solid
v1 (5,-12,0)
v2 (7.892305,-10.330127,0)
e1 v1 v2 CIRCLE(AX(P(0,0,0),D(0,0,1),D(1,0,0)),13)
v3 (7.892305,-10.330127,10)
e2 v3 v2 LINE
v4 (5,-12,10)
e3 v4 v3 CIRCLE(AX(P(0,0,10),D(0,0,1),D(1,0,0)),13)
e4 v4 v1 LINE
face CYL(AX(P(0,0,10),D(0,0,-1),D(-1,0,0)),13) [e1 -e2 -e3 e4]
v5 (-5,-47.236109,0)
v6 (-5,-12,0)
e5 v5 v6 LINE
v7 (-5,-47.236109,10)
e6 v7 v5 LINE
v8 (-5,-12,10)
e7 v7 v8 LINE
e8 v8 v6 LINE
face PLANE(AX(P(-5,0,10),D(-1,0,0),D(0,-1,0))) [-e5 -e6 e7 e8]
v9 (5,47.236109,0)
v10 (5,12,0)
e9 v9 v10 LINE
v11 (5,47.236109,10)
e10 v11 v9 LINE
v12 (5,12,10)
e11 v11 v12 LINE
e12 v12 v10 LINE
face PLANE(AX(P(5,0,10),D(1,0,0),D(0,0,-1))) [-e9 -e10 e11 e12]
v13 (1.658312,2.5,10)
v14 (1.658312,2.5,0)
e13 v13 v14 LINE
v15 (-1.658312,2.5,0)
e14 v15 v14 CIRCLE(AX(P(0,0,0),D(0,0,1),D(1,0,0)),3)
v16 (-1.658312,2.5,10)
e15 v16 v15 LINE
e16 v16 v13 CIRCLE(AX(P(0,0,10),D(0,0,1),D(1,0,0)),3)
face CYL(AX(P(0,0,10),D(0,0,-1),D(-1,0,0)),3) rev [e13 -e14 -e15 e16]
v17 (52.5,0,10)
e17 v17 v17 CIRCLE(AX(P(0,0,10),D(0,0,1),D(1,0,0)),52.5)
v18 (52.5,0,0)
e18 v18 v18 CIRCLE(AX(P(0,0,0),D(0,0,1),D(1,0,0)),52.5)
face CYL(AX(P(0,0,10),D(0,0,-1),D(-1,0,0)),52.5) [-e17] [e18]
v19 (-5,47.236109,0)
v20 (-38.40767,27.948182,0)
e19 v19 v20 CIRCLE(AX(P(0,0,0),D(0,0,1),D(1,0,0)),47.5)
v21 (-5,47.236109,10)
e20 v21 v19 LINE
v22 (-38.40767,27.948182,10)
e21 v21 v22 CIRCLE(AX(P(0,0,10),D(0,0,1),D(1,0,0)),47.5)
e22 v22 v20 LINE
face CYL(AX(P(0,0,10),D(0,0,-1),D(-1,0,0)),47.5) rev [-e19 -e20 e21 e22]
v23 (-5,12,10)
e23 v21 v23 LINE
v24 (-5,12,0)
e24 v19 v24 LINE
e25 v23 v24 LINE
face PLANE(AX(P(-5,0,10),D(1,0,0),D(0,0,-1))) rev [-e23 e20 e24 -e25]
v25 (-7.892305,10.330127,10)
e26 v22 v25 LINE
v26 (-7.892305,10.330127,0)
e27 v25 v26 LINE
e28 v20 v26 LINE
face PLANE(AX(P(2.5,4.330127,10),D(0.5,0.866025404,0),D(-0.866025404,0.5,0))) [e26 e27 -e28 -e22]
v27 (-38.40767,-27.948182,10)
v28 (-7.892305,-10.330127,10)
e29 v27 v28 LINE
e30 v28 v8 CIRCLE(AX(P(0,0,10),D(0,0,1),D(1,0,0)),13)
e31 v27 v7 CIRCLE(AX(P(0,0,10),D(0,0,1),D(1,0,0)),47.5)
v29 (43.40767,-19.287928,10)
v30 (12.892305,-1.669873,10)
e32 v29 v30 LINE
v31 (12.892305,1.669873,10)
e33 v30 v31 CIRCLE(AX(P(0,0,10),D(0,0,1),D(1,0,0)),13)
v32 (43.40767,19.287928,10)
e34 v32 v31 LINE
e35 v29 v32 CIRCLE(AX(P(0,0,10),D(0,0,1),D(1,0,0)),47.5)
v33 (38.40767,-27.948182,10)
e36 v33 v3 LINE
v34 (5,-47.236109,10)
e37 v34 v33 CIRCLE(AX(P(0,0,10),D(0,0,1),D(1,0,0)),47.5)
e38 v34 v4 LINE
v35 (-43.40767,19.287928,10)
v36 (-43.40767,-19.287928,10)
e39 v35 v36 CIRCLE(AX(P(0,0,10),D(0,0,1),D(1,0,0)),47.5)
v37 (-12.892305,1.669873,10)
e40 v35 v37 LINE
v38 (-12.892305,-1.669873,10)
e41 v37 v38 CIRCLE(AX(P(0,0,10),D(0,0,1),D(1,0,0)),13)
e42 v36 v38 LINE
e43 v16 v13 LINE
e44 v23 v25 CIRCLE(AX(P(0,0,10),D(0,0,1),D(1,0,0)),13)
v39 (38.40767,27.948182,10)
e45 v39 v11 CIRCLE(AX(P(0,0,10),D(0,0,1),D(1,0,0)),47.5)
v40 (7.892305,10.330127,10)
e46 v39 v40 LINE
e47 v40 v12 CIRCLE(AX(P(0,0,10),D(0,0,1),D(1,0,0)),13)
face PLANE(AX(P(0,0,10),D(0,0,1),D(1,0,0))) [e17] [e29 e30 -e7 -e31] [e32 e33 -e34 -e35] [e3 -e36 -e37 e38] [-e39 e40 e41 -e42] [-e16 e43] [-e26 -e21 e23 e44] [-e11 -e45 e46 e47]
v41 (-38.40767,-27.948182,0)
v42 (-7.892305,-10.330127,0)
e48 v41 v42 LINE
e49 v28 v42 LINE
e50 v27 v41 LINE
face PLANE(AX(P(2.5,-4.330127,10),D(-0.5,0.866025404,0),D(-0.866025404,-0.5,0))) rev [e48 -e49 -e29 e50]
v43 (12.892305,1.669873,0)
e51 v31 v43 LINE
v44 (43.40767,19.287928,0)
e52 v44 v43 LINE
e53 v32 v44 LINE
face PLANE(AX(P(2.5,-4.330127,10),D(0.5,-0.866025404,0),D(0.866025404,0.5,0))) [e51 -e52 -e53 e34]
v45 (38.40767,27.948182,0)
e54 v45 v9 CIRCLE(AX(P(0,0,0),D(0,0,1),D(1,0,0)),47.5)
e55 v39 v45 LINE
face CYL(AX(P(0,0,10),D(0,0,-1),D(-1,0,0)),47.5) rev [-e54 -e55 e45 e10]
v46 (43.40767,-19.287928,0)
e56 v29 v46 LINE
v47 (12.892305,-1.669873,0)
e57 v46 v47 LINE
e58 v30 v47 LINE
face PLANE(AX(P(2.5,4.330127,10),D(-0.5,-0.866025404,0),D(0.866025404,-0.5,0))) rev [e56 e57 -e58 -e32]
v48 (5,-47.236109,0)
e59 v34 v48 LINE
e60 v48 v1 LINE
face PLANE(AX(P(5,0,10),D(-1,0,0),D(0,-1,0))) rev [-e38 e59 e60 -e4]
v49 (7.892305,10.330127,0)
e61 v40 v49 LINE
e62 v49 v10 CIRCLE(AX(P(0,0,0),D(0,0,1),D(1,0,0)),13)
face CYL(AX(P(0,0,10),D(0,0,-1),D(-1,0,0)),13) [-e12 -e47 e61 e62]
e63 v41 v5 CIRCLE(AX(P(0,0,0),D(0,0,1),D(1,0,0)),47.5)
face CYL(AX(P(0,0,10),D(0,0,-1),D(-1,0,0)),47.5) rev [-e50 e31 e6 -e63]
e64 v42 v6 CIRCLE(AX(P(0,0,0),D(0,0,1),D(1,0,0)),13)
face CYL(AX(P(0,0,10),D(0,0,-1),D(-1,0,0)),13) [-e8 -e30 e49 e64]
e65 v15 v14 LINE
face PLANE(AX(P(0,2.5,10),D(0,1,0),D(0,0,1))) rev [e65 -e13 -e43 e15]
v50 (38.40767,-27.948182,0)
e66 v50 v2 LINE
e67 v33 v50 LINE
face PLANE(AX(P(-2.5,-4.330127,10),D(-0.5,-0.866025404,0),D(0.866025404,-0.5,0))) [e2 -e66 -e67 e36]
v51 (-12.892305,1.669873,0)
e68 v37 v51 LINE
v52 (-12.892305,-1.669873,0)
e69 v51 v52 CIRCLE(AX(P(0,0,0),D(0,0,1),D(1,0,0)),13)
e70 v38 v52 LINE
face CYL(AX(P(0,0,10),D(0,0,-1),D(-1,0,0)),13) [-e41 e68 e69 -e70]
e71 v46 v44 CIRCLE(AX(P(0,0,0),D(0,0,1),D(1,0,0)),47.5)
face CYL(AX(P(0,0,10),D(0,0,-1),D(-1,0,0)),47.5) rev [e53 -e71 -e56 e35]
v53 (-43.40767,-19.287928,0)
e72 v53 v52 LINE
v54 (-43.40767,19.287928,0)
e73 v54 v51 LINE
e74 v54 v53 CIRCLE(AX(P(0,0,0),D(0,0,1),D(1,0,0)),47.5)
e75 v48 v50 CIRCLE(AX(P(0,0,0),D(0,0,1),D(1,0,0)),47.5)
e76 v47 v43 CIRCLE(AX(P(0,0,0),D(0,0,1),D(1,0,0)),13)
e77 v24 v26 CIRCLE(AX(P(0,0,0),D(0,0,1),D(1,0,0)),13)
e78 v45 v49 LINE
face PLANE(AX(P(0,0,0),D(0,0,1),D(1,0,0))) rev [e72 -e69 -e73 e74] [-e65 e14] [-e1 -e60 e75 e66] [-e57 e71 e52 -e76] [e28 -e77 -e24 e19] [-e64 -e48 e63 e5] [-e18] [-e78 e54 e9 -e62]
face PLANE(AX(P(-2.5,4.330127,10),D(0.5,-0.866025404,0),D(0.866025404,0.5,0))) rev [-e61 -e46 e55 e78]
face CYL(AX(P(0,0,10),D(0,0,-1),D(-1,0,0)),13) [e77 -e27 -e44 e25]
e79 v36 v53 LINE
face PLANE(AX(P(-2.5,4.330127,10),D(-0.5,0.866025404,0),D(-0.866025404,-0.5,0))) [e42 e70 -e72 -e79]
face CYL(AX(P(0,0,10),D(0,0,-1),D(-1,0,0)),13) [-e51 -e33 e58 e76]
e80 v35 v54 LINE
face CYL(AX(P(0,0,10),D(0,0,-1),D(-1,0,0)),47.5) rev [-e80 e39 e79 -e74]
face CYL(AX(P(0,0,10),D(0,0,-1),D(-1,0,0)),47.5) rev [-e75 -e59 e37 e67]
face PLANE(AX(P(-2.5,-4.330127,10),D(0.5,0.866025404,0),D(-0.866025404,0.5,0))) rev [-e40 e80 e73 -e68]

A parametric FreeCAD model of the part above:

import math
import FreeCAD as App
import Part
import Sketcher
Q = App.Units.Quantity

doc = App.newDocument("Part")
body = doc.addObject("PartDesign::Body", "Body")

# Sketch on XY plane
sketch1 = body.newObject("Sketcher::SketchObject", "Sketch")
sketch1.AttachmentSupport = (doc.getObject("XY_Plane"), [""])
sketch1.MapMode = "FlatFace"
sketch1.addGeometry([
    Part.Circle(App.Vector(0, 0, 0), App.Vector(0, 0, 1), 52.5),  # 0
    Part.LineSegment(App.Vector(-5, -12, 0), App.Vector(-5, -47.2, 0)),  # 1
    Part.ArcOfCircle(Part.Circle(App.Vector(0, 0, 0), App.Vector(0, 0, 1), 47.5), math.radians(-144), math.radians(-96)),  # 2
    Part.LineSegment(App.Vector(-38.4, -27.9, 0), App.Vector(-7.9, -10.3, 0)),  # 3
    Part.ArcOfCircle(Part.Circle(App.Vector(0, 0, 0), App.Vector(0, 0, 1), 13), math.radians(-127.38), math.radians(-112.62)),  # 4
    Part.LineSegment(App.Vector(7.9, -10.3, 0), App.Vector(38.4, -27.9, 0)),  # 5
    Part.ArcOfCircle(Part.Circle(App.Vector(0, 0, 0), App.Vector(0, 0, 1), 47.5), math.radians(-84), math.radians(-36)),  # 6
    Part.LineSegment(App.Vector(5, -47.2, 0), App.Vector(5, -12, 0)),  # 7
    Part.ArcOfCircle(Part.Circle(App.Vector(0, 0, 0), App.Vector(0, 0, 1), 13), math.radians(-67.38), math.radians(-52.62)),  # 8
    Part.ArcOfCircle(Part.Circle(App.Vector(0, 0, 0), App.Vector(0, 0, 1), 3), math.radians(124), math.radians(416)),  # 9
    Part.LineSegment(App.Vector(-1.7, 2.5, 0), App.Vector(1.7, 2.5, 0)),  # 10
    Part.LineSegment(App.Vector(12.9, 1.7, 0), App.Vector(43.4, 19.3, 0)),  # 11
    Part.ArcOfCircle(Part.Circle(App.Vector(0, 0, 0), App.Vector(0, 0, 1), 47.5), math.radians(-24), math.radians(24)),  # 12
    Part.LineSegment(App.Vector(43.4, -19.3, 0), App.Vector(12.9, -1.7, 0)),  # 13
    Part.ArcOfCircle(Part.Circle(App.Vector(0, 0, 0), App.Vector(0, 0, 1), 13), math.radians(-7.38), math.radians(7.38)),  # 14
    Part.LineSegment(App.Vector(-12.9, -1.7, 0), App.Vector(-43.4, -19.3, 0)),  # 15
    Part.ArcOfCircle(Part.Circle(App.Vector(0, 0, 0), App.Vector(0, 0, 1), 47.5), math.radians(156), math.radians(204)),  # 16
    Part.LineSegment(App.Vector(-43.4, 19.3, 0), App.Vector(-12.9, 1.7, 0)),  # 17
    Part.ArcOfCircle(Part.Circle(App.Vector(0, 0, 0), App.Vector(0, 0, 1), 13), math.radians(172.62), math.radians(187.38)),  # 18
    Part.ArcOfCircle(Part.Circle(App.Vector(0, 0, 0), App.Vector(0, 0, 1), 47.5), math.radians(96), math.radians(144)),  # 19
    Part.LineSegment(App.Vector(-5, 47.2, 0), App.Vector(-5, 12, 0)),  # 20
    Part.ArcOfCircle(Part.Circle(App.Vector(0, 0, 0), App.Vector(0, 0, 1), 13), math.radians(112.62), math.radians(127.38)),  # 21
    Part.LineSegment(App.Vector(-7.9, 10.3, 0), App.Vector(-38.4, 27.9, 0)),  # 22
    Part.LineSegment(App.Vector(5, 12, 0), App.Vector(5, 47.2, 0)),  # 23
    Part.ArcOfCircle(Part.Circle(App.Vector(0, 0, 0), App.Vector(0, 0, 1), 47.5), math.radians(36), math.radians(84)),  # 24
    Part.LineSegment(App.Vector(38.4, 27.9, 0), App.Vector(7.9, 10.3, 0)),  # 25
    Part.ArcOfCircle(Part.Circle(App.Vector(0, 0, 0), App.Vector(0, 0, 1), 13), math.radians(52.62), math.radians(67.38)),  # 26
], False)
sketch1.addConstraint([
    Sketcher.Constraint("Coincident", 1, 2, 2, 2),
    Sketcher.Constraint("Coincident", 2, 1, 3, 1),
    Sketcher.Constraint("Coincident", 3, 2, 4, 1),
    Sketcher.Constraint("Coincident", 4, 2, 1, 1),
    Sketcher.Constraint("Coincident", 5, 2, 6, 2),
    Sketcher.Constraint("Coincident", 6, 1, 7, 1),
    Sketcher.Constraint("Coincident", 7, 2, 8, 1),
    Sketcher.Constraint("Coincident", 8, 2, 5, 1),
    Sketcher.Constraint("Coincident", 9, 1, 10, 1),
    Sketcher.Constraint("Coincident", 10, 2, 9, 2),
    Sketcher.Constraint("Coincident", 11, 2, 12, 2),
    Sketcher.Constraint("Coincident", 12, 1, 13, 1),
    Sketcher.Constraint("Coincident", 13, 2, 14, 1),
    Sketcher.Constraint("Coincident", 14, 2, 11, 1),
    Sketcher.Constraint("Coincident", 15, 2, 16, 2),
    Sketcher.Constraint("Coincident", 16, 1, 17, 1),
    Sketcher.Constraint("Coincident", 17, 2, 18, 1),
    Sketcher.Constraint("Coincident", 18, 2, 15, 1),
    Sketcher.Constraint("Coincident", 19, 1, 20, 1),
    Sketcher.Constraint("Coincident", 20, 2, 21, 1),
    Sketcher.Constraint("Coincident", 21, 2, 22, 1),
    Sketcher.Constraint("Coincident", 22, 2, 19, 2),
    Sketcher.Constraint("Coincident", 23, 2, 24, 2),
    Sketcher.Constraint("Coincident", 24, 1, 25, 1),
    Sketcher.Constraint("Coincident", 25, 2, 26, 1),
    Sketcher.Constraint("Coincident", 26, 2, 23, 1),
    Sketcher.Constraint("Vertical", 1),
    Sketcher.Constraint("Vertical", 7),
    Sketcher.Constraint("Horizontal", 10),
    Sketcher.Constraint("Vertical", 20),
    Sketcher.Constraint("Vertical", 23),
    Sketcher.Constraint("Coincident", 0, 3, -1, 1),
    Sketcher.Constraint("Coincident", 2, 3, -1, 1),
    Sketcher.Constraint("Coincident", 4, 3, -1, 1),
    Sketcher.Constraint("Coincident", 6, 3, -1, 1),
    Sketcher.Constraint("Coincident", 8, 3, -1, 1),
    Sketcher.Constraint("Coincident", 9, 3, -1, 1),
    Sketcher.Constraint("Coincident", 12, 3, -1, 1),
    Sketcher.Constraint("Coincident", 14, 3, -1, 1),
    Sketcher.Constraint("Coincident", 16, 3, -1, 1),
    Sketcher.Constraint("Coincident", 18, 3, -1, 1),
    Sketcher.Constraint("Coincident", 19, 3, -1, 1),
    Sketcher.Constraint("Coincident", 21, 3, -1, 1),
    Sketcher.Constraint("Coincident", 24, 3, -1, 1),
    Sketcher.Constraint("Coincident", 26, 3, -1, 1),
    Sketcher.Constraint("Equal", 2, 6),
    Sketcher.Constraint("Equal", 4, 8),
    Sketcher.Constraint("Equal", 6, 12),
    Sketcher.Constraint("Equal", 8, 14),
    Sketcher.Constraint("Equal", 12, 16),
    Sketcher.Constraint("Equal", 14, 18),
    Sketcher.Constraint("Equal", 16, 19),
    Sketcher.Constraint("Equal", 18, 21),
    Sketcher.Constraint("Equal", 19, 24),
    Sketcher.Constraint("Equal", 21, 26),
    Sketcher.Constraint("Parallel", 3, 11),
    Sketcher.Constraint("Parallel", 5, 13),
    Sketcher.Constraint("Parallel", 11, 15),
    Sketcher.Constraint("Parallel", 13, 17),
    Sketcher.Constraint("Parallel", 17, 22),
    Sketcher.Constraint("Parallel", 15, 25),
    Sketcher.Constraint("Horizontal", 2, 1, 5, 2),
    Sketcher.Constraint("Horizontal", 1, 2, 6, 1),
    Sketcher.Constraint("Horizontal", 3, 2, 8, 2),
    Sketcher.Constraint("Horizontal", 12, 1, 15, 2),
    Sketcher.Constraint("Horizontal", 11, 2, 16, 1),
    Sketcher.Constraint("Horizontal", 19, 1, 23, 2),
    Sketcher.Constraint("Horizontal", 22, 2, 24, 1),
    Sketcher.Constraint("Vertical", 11, 2, 12, 1),
    Sketcher.Constraint("Vertical", 4, 2, 19, 1),
    Sketcher.Constraint("Vertical", 3, 2, 21, 2),
    Sketcher.Constraint("Equal", 5, 11),
    Sketcher.Constraint("Diameter", 0, 105.0),
    Sketcher.Constraint("Radius", 4, 13.0),
    Sketcher.Constraint("Radius", 9, 3.0),
    Sketcher.Constraint("Radius", 2, 47.5),
    Sketcher.Constraint("Angle", 3, Q("30 deg")),
    Sketcher.Constraint("DistanceX", 1, 2, -1, 1, 5.0),
    Sketcher.Constraint("DistanceX", 5, 2, 12, 1, 5.0),
    Sketcher.Constraint("DistanceY", -1, 1, 9, 1, 2.5),
])
pad1 = body.newObject("PartDesign::Pad", "Pad")
pad1.Profile = sketch1
pad1.Length = 10

doc.recompute()
